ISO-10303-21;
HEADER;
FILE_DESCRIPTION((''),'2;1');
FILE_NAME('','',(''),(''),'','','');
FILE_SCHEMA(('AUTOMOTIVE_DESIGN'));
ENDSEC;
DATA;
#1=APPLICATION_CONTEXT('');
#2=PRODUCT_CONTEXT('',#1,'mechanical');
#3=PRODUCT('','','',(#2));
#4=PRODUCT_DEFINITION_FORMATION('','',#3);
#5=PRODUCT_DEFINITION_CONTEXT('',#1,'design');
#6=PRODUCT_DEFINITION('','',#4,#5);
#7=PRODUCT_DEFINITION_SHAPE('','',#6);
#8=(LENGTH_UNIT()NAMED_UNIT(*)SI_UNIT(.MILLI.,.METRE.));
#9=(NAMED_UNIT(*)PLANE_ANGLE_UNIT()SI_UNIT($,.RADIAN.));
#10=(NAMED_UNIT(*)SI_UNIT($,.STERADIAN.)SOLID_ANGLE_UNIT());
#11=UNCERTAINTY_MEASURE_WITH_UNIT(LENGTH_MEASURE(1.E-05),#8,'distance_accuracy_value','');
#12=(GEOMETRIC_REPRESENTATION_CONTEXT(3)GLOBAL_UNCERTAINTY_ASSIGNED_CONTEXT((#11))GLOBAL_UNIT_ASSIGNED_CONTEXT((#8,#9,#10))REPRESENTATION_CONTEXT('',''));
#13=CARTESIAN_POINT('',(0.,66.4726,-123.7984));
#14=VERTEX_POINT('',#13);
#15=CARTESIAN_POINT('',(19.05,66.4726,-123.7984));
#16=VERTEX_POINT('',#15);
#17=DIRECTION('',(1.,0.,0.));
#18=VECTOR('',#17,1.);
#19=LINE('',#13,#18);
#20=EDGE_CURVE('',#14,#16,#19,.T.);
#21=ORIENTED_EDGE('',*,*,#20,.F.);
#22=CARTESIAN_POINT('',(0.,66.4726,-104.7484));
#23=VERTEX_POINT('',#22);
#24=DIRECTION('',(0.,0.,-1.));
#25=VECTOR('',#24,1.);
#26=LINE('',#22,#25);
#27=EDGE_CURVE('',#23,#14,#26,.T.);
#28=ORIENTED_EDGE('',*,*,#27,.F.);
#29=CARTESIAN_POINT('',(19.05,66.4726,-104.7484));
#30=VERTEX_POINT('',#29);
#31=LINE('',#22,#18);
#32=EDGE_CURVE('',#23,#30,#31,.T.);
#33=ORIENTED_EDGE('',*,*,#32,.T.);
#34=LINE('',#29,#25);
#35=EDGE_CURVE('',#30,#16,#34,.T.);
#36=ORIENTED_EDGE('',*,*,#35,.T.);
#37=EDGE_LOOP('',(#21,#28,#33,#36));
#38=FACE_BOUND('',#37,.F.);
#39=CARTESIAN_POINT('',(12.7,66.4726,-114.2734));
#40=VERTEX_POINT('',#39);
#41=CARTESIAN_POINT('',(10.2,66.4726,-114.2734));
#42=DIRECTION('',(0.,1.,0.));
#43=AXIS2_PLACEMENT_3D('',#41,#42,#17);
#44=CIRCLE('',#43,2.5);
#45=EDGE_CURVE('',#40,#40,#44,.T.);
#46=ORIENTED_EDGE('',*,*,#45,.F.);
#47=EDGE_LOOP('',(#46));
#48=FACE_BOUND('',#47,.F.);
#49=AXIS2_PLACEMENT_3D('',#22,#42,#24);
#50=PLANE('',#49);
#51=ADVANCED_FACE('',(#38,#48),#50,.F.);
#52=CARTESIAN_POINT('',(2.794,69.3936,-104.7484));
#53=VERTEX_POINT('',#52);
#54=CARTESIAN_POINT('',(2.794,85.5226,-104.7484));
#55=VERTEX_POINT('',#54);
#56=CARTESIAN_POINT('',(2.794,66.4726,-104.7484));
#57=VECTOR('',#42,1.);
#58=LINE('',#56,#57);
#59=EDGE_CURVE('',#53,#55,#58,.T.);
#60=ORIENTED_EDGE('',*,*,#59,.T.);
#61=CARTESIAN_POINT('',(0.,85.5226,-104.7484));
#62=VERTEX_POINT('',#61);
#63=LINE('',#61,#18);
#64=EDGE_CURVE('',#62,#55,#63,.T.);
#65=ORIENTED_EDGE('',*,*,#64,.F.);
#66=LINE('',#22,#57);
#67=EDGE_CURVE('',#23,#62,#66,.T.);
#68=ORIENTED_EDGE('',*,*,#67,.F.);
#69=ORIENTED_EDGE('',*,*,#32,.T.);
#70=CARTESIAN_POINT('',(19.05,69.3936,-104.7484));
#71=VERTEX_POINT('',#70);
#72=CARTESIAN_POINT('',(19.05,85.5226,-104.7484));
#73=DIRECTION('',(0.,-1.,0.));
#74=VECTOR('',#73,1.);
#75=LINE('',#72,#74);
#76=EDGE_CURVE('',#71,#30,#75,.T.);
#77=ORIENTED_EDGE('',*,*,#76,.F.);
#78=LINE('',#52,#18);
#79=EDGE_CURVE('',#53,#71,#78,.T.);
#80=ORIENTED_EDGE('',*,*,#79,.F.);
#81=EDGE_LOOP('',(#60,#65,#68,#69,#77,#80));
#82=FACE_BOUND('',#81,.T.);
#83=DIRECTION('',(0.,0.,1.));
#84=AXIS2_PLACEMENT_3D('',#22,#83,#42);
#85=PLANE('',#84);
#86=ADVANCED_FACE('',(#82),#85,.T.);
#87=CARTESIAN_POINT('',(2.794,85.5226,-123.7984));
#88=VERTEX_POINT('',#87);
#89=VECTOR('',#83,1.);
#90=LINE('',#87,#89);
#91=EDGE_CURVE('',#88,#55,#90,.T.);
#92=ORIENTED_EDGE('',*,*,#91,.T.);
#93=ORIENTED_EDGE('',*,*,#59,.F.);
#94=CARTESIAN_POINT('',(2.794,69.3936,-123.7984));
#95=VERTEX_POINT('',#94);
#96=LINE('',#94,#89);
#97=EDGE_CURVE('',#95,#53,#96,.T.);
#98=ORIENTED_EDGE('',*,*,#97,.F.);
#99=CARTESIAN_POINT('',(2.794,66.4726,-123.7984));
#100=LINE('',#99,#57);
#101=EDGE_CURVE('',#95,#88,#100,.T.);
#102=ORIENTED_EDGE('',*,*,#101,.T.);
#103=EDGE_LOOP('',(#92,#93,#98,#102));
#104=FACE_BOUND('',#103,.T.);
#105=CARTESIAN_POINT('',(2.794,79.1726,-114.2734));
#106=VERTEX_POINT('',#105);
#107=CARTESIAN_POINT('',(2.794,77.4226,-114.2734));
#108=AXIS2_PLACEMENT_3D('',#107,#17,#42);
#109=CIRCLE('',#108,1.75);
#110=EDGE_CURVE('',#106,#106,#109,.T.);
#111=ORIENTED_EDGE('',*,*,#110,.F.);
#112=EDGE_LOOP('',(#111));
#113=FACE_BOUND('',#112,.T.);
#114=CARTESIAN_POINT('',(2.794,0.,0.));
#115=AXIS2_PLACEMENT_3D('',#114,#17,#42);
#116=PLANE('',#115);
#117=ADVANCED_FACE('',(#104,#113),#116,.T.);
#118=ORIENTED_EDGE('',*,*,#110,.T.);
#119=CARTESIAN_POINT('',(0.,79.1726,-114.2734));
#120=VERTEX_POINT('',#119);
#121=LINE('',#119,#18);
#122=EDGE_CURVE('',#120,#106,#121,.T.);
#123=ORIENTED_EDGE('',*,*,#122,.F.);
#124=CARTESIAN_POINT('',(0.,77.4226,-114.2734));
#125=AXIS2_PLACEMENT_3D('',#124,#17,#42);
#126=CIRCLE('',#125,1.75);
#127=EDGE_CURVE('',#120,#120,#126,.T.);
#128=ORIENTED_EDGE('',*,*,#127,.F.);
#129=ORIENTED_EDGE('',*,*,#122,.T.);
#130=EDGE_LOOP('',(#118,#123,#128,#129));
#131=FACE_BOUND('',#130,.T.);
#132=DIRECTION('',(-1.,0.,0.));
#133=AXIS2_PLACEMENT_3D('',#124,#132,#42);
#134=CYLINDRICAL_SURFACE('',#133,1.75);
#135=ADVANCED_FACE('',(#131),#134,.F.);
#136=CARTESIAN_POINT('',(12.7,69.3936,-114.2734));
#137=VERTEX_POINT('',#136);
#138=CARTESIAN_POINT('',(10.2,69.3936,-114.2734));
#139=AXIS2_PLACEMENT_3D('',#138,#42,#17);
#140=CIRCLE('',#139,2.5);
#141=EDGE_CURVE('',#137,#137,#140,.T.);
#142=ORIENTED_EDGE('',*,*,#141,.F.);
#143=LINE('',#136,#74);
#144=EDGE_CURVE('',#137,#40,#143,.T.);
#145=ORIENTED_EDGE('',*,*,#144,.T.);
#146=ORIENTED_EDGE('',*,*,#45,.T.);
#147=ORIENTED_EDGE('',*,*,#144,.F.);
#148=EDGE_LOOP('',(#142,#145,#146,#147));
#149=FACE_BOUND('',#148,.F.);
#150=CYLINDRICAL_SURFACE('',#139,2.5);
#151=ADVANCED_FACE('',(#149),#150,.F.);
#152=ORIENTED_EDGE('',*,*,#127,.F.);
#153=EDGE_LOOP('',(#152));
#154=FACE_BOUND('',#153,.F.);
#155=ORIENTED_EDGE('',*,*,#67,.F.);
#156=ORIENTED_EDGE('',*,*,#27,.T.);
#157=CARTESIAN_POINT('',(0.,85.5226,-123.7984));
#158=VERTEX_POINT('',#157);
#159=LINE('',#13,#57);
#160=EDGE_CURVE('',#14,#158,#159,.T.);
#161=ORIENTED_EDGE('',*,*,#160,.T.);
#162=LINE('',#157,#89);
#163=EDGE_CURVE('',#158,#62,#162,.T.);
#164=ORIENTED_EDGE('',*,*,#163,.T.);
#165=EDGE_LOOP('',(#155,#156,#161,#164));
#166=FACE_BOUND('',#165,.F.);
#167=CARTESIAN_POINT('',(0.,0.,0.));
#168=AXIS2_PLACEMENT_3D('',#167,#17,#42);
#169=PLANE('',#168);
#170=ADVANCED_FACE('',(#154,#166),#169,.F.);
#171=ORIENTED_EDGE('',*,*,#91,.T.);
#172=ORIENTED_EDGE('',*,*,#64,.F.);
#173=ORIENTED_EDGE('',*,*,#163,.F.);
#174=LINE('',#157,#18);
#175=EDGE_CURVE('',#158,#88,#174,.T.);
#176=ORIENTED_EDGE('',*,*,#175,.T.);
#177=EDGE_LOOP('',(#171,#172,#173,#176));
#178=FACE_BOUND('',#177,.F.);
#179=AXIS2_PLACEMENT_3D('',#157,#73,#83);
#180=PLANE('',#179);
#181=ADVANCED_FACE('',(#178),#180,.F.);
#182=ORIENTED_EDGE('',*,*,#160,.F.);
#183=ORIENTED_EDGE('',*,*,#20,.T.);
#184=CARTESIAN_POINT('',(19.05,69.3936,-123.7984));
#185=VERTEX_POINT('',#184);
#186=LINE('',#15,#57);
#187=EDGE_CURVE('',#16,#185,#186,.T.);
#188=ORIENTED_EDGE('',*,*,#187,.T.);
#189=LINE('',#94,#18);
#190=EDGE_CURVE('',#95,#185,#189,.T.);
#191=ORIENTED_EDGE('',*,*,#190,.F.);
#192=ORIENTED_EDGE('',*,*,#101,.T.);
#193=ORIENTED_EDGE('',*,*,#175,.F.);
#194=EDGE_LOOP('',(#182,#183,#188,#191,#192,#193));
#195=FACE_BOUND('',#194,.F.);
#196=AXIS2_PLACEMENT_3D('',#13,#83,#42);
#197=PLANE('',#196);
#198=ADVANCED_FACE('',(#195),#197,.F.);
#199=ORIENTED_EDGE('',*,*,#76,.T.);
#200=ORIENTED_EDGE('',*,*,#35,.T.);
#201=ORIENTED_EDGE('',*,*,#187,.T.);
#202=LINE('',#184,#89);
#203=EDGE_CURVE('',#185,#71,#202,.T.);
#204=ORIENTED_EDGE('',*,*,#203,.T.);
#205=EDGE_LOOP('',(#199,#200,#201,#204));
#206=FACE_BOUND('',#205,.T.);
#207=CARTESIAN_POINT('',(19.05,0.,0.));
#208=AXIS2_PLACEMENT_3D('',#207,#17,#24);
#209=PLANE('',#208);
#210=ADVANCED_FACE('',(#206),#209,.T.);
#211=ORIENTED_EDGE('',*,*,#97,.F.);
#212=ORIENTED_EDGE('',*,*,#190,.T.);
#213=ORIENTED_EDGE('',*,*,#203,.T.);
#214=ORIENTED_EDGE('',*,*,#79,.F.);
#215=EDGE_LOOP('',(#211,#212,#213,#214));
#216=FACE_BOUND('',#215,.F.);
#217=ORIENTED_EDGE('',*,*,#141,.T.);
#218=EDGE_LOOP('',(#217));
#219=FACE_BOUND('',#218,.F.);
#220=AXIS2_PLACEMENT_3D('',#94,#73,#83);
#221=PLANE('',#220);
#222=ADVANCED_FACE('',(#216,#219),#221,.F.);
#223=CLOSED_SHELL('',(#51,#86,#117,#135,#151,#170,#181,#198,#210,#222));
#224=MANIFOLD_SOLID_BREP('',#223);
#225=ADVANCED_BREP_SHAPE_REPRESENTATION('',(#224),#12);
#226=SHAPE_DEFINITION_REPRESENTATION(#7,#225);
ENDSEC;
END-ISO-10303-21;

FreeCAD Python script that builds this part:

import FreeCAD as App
import Part
import Sketcher
from FreeCAD import Vector
Q = App.Units.Quantity


def add_polygon(sketch, points):
    """Adds a closed chain of lines whose ends are joined by coincident constraints."""
    first, n = sketch.GeometryCount, len(points)
    for a, b in zip(points, points[1:] + points[:1]):
        sketch.addGeometry(Part.LineSegment(App.Vector(*a, 0), App.Vector(*b, 0)), False)
    for i in range(n):
        sketch.addConstraint(Sketcher.Constraint("Coincident", first + i, 2, first + (i + 1) % n, 1))

doc = App.newDocument("Part")
params = doc.addObject("Spreadsheet::Sheet", "Params")
for row, (alias, value) in enumerate([
    ("sketch1_width", "0.75 in"),
    ("pad1_length", "0.11 in"),
    ("sketch2_width", "0.115 in"),
    ("sketch2_height", "0.75 in"),
    ("pad2_length", "0.64 in"),
    ("pocket1_length", "0.64 in"),
], start=1):
    params.set(f"A{row}", alias)
    params.set(f"B{row}", "=" + value)
    params.setAlias(f"B{row}", alias)

body = doc.addObject("PartDesign::Body", "Body")

sketch1 = body.newObject("Sketcher::SketchObject", "Sketch")
sketch1.AttachmentSupport = (doc.getObject("YZ_Plane"), [""])
sketch1.MapMode = "FlatFace"
add_polygon(sketch1, [(85.5226, -104.7484), (66.4726, -104.7484), (66.4726, -123.7984), (85.5226, -123.7984)])
sketch1.addGeometry(Part.Circle(Vector(77.4226, -114.2734, 0), Vector(0, 0, 1), 1.75), False)
sketch1.addConstraint([
    Sketcher.Constraint("Horizontal", 0),
    Sketcher.Constraint("Vertical", 1),
    Sketcher.Constraint("Horizontal", 2),
    Sketcher.Constraint("Vertical", 3),
    Sketcher.Constraint("Equal", 2, 1),
    Sketcher.Constraint("Diameter", 4, Q("0.1378 in")),
    Sketcher.Constraint("DistanceX", 0, 2, 0, 1, Q("0.75 in")),
    Sketcher.Constraint("DistanceY", 4, 3, 0, 2, Q("0.375 in")),
    Sketcher.Constraint("DistanceX", 0, 2, 4, 3, Q("0.4311 in")),
    Sketcher.Constraint("DistanceX", -1, 1, 4, 3, 77.4226),
    Sketcher.Constraint("DistanceY", 4, 3, -1, 1, 114.2734),
])
sketch1.setExpression("Constraints[10]", "Params.sketch1_width")
pad1 = body.newObject("PartDesign::Pad", "Pad")
pad1.Profile = sketch1
pad1.setExpression("Length", "Params.pad1_length")

sketch2 = body.newObject("Sketcher::SketchObject", "Sketch001")
sketch2.AttachmentSupport = (doc.getObject("YZ_Plane"), [""])
sketch2.MapMode = "FlatFace"
sketch2.AttachmentOffset = App.Placement(Vector(0, 0, 0.11 * 25.4), App.Rotation())
add_polygon(sketch2, [(69.3936, -104.7484), (66.4726, -104.7484), (66.4726, -123.7984), (69.3936, -123.7984)])
sketch2.addConstraint([
    Sketcher.Constraint("Horizontal", 0),
    Sketcher.Constraint("Vertical", 1),
    Sketcher.Constraint("Horizontal", 2),
    Sketcher.Constraint("Vertical", 3),
    Sketcher.Constraint("DistanceX", 0, 2, 0, 1, Q("0.115 in")),
    Sketcher.Constraint("DistanceY", 1, 2, 1, 1, Q("0.75 in")),
    Sketcher.Constraint("DistanceX", -1, 1, 0, 2, 66.4726),
    Sketcher.Constraint("DistanceY", 0, 2, -1, 1, 104.7484),
])
sketch2.setExpression("Constraints[8]", "Params.sketch2_width")
sketch2.setExpression("Constraints[9]", "Params.sketch2_height")
pad2 = body.newObject("PartDesign::Pad", "Pad001")
pad2.Profile = sketch2
pad2.setExpression("Length", "Params.pad2_length")

sketch3 = body.newObject("Sketcher::SketchObject", "Sketch002")
sketch3.AttachmentSupport = (doc.getObject("XZ_Plane"), [""])
sketch3.MapMode = "FlatFace"
sketch3.AttachmentOffset = App.Placement(Vector(0, 0, -69.3936), App.Rotation())
sketch3.addGeometry(Part.Circle(Vector(10.2, -114.2734, 0), Vector(0, 0, 1), 2.5), False)
sketch3.addConstraint([
    Sketcher.Constraint("Diameter", 0, 5.0),
    Sketcher.Constraint("DistanceX", -1, 1, 0, 3, 10.2),
    Sketcher.Constraint("DistanceY", 0, 3, -1, 1, 114.2734),
])
pocket1 = body.newObject("PartDesign::Pocket", "Pocket")
pocket1.Profile = sketch3
pocket1.setExpression("Length", "Params.pocket1_length")
pocket1.Reversed = True

doc.recompute()
